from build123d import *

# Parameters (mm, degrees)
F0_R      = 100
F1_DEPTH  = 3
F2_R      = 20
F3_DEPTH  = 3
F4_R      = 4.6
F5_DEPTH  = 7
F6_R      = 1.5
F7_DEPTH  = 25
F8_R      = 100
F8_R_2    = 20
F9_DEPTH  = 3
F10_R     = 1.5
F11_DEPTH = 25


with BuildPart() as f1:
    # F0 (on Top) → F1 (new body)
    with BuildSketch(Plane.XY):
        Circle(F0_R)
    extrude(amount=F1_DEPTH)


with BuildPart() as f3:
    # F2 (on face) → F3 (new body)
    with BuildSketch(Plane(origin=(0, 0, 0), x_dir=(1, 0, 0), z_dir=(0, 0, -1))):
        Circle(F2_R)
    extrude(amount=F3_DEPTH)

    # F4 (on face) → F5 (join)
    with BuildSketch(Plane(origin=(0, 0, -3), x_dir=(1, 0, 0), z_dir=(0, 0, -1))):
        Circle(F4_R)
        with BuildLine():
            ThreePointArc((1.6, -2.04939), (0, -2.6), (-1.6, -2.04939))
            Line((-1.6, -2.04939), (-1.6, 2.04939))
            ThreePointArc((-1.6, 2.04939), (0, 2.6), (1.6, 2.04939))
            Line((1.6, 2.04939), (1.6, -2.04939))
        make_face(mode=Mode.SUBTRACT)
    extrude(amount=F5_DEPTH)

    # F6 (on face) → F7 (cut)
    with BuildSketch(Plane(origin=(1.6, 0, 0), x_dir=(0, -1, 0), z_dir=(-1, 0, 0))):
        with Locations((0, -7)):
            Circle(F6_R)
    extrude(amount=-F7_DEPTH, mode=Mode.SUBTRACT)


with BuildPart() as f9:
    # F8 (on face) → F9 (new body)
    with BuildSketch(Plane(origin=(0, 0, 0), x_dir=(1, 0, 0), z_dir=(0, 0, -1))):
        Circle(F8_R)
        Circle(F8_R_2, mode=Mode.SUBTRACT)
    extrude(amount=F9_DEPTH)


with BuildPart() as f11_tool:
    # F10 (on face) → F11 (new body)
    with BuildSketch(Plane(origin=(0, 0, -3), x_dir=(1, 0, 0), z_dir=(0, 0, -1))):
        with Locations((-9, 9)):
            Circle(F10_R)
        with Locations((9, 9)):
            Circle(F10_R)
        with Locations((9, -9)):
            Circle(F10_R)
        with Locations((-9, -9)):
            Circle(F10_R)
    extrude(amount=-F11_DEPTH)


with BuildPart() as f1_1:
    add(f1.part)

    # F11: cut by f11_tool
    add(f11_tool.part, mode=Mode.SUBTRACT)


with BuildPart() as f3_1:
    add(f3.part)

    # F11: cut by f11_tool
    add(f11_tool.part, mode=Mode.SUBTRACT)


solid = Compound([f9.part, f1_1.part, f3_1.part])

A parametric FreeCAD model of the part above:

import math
import FreeCAD as App
import Part
import Sketcher
from FreeCAD import Vector

doc = App.newDocument("Part")
body = doc.addObject("PartDesign::Body", "Body")

sketch1 = doc.addObject("Sketcher::SketchObject", "Sketch")
body.addObject(sketch1)
sketch1.AttachmentSupport = (doc.XY_Plane, [""])
sketch1.MapMode = "FlatFace"
sketch1.addGeometry(Part.Circle(Vector(0, 0, 0), Vector(0, 0, 1), 100), False)
sketch1.addConstraint([
    Sketcher.Constraint("Coincident", 0, 3, -1, 1),
    Sketcher.Constraint("Diameter", 0, 200.0),
])
pad1 = doc.addObject("PartDesign::Pad", "Pad")
body.addObject(pad1)
pad1.Profile = sketch1
pad1.Length = 3
body2 = doc.addObject("PartDesign::Body", "Body001")

sketch2 = doc.addObject("Sketcher::SketchObject", "Sketch001")
body2.addObject(sketch2)
sketch2.AttachmentSupport = (doc.getObject("XY_Plane001"), [""])
sketch2.MapMode = "FlatFace"
sketch2.addGeometry(Part.Circle(Vector(0, 0, 0), Vector(0, 0, 1), 20), False)
sketch2.addConstraint([
    Sketcher.Constraint("Coincident", 0, 3, -1, 1),
    Sketcher.Constraint("Diameter", 0, 40.0),
])
pad2 = doc.addObject("PartDesign::Pad", "Pad001")
body2.addObject(pad2)
pad2.Profile = sketch2
pad2.Length = 3
pad2.Reversed = True

sketch3 = doc.addObject("Sketcher::SketchObject", "Sketch002")
body2.addObject(sketch3)
sketch3.AttachmentSupport = (doc.getObject("XY_Plane001"), [""])
sketch3.MapMode = "FlatFace"
sketch3.AttachmentOffset = App.Placement(Vector(0, 0, -3), App.Rotation())
sketch3.addGeometry([
    Part.Circle(Vector(0, 0, 0), Vector(0, 0, 1), 4.6),
    Part.LineSegment(Vector(1.6, -2, 0), Vector(1.6, 2, 0)),
    Part.ArcOfCircle(Part.Circle(Vector(0, 0, 0), Vector(0, 0, 1), 2.6), math.radians(52), math.radians(128)),
    Part.LineSegment(Vector(-1.6, 2, 0), Vector(-1.6, -2, 0)),
    Part.ArcOfCircle(Part.Circle(Vector(0, 0, 0), Vector(0, 0, 1), 2.6), math.radians(-128), math.radians(-52)),
], False)
sketch3.addConstraint([
    Sketcher.Constraint("Coincident", 1, 2, 2, 1),
    Sketcher.Constraint("Coincident", 2, 2, 3, 1),
    Sketcher.Constraint("Coincident", 3, 2, 4, 1),
    Sketcher.Constraint("Coincident", 4, 2, 1, 1),
    Sketcher.Constraint("Vertical", 1),
    Sketcher.Constraint("Vertical", 3),
    Sketcher.Constraint("Coincident", 0, 3, -1, 1),
    Sketcher.Constraint("Coincident", 2, 3, -1, 1),
    Sketcher.Constraint("Coincident", 4, 3, -1, 1),
    Sketcher.Constraint("Equal", 2, 4),
    Sketcher.Constraint("Horizontal", 1, 2, 2, 2),
    Sketcher.Constraint("Diameter", 0, 9.2),
    Sketcher.Constraint("Radius", 2, 2.599999),
    Sketcher.Constraint("DistanceX", -1, 1, 1, 2, 1.6),
])
pad3 = doc.addObject("PartDesign::Pad", "Pad002")
body2.addObject(pad3)
pad3.Profile = sketch3
pad3.Length = 7
pad3.Reversed = True

sketch4 = doc.addObject("Sketcher::SketchObject", "Sketch003")
body2.addObject(sketch4)
sketch4.AttachmentSupport = (doc.getObject("YZ_Plane001"), [""])
sketch4.MapMode = "FlatFace"
sketch4.AttachmentOffset = App.Placement(Vector(0, 0, 1.6), App.Rotation())
sketch4.addGeometry(Part.Circle(Vector(0, -7, 0), Vector(0, 0, 1), 1.5), False)
sketch4.addConstraint([
    Sketcher.Constraint("PointOnObject", 0, 3, -2),
    Sketcher.Constraint("Diameter", 0, 3.0),
    Sketcher.Constraint("DistanceY", 0, 3, -1, 1, 7.0),
])
pocket1 = doc.addObject("PartDesign::Pocket", "Pocket")
body2.addObject(pocket1)
pocket1.Profile = sketch4
pocket1.Length = 25
pocket1.Reversed = True
body3 = doc.addObject("PartDesign::Body", "Body002")

sketch5 = doc.addObject("Sketcher::SketchObject", "Sketch004")
body3.addObject(sketch5)
sketch5.AttachmentSupport = (doc.getObject("XY_Plane002"), [""])
sketch5.MapMode = "FlatFace"
sketch5.addGeometry([
    Part.Circle(Vector(0, 0, 0), Vector(0, 0, 1), 100),
    Part.Circle(Vector(0, 0, 0), Vector(0, 0, 1), 20),
], False)
sketch5.addConstraint([
    Sketcher.Constraint("Coincident", 0, 3, -1, 1),
    Sketcher.Constraint("Coincident", 1, 3, -1, 1),
    Sketcher.Constraint("Diameter", 0, 200.0),
    Sketcher.Constraint("Diameter", 1, 40.0),
])
pad4 = doc.addObject("PartDesign::Pad", "Pad003")
body3.addObject(pad4)
pad4.Profile = sketch5
pad4.Length = 3
pad4.Reversed = True
body4 = doc.addObject("PartDesign::Body", "Body003")
body4.AllowCompound = True

sketch6 = doc.addObject("Sketcher::SketchObject", "Sketch005")
body4.addObject(sketch6)
sketch6.AttachmentSupport = (doc.getObject("XY_Plane003"), [""])
sketch6.MapMode = "FlatFace"
sketch6.AttachmentOffset = App.Placement(Vector(0, 0, -3), App.Rotation())
sketch6.addGeometry([
    Part.Circle(Vector(-9, -9, 0), Vector(0, 0, 1), 1.5),
    Part.Circle(Vector(9, -9, 0), Vector(0, 0, 1), 1.5),
    Part.Circle(Vector(9, 9, 0), Vector(0, 0, 1), 1.5),
    Part.Circle(Vector(-9, 9, 0), Vector(0, 0, 1), 1.5),
], False)
sketch6.addConstraint([
    Sketcher.Constraint("Equal", 0, 1),
    Sketcher.Constraint("Equal", 1, 2),
    Sketcher.Constraint("Equal", 2, 3),
    Sketcher.Constraint("Symmetric", 0, 3, 2, 3, -1, 1),
    Sketcher.Constraint("Symmetric", 1, 3, 3, 3, -1, 1),
    Sketcher.Constraint("Symmetric", 0, 3, 1, 3, -2),
    Sketcher.Constraint("Diameter", 0, 3.0),
    Sketcher.Constraint("DistanceX", 0, 3, -1, 1, 9.0),
    Sketcher.Constraint("DistanceY", 0, 3, -1, 1, 9.0),
])
pad5 = doc.addObject("PartDesign::Pad", "Pad004")
body4.addObject(pad5)
pad5.Profile = sketch6
pad5.Length = 25
doc.recompute()

body5 = doc.addObject("PartDesign::Body", "Body004")
body5.BaseFeature = body4
boolean = doc.addObject("PartDesign::Boolean", "Boolean")
body.addObject(boolean)
boolean.Type = "Cut"
boolean.addObjects([body5])
doc.recompute()

boolean2 = doc.addObject("PartDesign::Boolean", "Boolean001")
body2.addObject(boolean2)
boolean2.Type = "Cut"
boolean2.addObjects([body4])

doc.recompute()
